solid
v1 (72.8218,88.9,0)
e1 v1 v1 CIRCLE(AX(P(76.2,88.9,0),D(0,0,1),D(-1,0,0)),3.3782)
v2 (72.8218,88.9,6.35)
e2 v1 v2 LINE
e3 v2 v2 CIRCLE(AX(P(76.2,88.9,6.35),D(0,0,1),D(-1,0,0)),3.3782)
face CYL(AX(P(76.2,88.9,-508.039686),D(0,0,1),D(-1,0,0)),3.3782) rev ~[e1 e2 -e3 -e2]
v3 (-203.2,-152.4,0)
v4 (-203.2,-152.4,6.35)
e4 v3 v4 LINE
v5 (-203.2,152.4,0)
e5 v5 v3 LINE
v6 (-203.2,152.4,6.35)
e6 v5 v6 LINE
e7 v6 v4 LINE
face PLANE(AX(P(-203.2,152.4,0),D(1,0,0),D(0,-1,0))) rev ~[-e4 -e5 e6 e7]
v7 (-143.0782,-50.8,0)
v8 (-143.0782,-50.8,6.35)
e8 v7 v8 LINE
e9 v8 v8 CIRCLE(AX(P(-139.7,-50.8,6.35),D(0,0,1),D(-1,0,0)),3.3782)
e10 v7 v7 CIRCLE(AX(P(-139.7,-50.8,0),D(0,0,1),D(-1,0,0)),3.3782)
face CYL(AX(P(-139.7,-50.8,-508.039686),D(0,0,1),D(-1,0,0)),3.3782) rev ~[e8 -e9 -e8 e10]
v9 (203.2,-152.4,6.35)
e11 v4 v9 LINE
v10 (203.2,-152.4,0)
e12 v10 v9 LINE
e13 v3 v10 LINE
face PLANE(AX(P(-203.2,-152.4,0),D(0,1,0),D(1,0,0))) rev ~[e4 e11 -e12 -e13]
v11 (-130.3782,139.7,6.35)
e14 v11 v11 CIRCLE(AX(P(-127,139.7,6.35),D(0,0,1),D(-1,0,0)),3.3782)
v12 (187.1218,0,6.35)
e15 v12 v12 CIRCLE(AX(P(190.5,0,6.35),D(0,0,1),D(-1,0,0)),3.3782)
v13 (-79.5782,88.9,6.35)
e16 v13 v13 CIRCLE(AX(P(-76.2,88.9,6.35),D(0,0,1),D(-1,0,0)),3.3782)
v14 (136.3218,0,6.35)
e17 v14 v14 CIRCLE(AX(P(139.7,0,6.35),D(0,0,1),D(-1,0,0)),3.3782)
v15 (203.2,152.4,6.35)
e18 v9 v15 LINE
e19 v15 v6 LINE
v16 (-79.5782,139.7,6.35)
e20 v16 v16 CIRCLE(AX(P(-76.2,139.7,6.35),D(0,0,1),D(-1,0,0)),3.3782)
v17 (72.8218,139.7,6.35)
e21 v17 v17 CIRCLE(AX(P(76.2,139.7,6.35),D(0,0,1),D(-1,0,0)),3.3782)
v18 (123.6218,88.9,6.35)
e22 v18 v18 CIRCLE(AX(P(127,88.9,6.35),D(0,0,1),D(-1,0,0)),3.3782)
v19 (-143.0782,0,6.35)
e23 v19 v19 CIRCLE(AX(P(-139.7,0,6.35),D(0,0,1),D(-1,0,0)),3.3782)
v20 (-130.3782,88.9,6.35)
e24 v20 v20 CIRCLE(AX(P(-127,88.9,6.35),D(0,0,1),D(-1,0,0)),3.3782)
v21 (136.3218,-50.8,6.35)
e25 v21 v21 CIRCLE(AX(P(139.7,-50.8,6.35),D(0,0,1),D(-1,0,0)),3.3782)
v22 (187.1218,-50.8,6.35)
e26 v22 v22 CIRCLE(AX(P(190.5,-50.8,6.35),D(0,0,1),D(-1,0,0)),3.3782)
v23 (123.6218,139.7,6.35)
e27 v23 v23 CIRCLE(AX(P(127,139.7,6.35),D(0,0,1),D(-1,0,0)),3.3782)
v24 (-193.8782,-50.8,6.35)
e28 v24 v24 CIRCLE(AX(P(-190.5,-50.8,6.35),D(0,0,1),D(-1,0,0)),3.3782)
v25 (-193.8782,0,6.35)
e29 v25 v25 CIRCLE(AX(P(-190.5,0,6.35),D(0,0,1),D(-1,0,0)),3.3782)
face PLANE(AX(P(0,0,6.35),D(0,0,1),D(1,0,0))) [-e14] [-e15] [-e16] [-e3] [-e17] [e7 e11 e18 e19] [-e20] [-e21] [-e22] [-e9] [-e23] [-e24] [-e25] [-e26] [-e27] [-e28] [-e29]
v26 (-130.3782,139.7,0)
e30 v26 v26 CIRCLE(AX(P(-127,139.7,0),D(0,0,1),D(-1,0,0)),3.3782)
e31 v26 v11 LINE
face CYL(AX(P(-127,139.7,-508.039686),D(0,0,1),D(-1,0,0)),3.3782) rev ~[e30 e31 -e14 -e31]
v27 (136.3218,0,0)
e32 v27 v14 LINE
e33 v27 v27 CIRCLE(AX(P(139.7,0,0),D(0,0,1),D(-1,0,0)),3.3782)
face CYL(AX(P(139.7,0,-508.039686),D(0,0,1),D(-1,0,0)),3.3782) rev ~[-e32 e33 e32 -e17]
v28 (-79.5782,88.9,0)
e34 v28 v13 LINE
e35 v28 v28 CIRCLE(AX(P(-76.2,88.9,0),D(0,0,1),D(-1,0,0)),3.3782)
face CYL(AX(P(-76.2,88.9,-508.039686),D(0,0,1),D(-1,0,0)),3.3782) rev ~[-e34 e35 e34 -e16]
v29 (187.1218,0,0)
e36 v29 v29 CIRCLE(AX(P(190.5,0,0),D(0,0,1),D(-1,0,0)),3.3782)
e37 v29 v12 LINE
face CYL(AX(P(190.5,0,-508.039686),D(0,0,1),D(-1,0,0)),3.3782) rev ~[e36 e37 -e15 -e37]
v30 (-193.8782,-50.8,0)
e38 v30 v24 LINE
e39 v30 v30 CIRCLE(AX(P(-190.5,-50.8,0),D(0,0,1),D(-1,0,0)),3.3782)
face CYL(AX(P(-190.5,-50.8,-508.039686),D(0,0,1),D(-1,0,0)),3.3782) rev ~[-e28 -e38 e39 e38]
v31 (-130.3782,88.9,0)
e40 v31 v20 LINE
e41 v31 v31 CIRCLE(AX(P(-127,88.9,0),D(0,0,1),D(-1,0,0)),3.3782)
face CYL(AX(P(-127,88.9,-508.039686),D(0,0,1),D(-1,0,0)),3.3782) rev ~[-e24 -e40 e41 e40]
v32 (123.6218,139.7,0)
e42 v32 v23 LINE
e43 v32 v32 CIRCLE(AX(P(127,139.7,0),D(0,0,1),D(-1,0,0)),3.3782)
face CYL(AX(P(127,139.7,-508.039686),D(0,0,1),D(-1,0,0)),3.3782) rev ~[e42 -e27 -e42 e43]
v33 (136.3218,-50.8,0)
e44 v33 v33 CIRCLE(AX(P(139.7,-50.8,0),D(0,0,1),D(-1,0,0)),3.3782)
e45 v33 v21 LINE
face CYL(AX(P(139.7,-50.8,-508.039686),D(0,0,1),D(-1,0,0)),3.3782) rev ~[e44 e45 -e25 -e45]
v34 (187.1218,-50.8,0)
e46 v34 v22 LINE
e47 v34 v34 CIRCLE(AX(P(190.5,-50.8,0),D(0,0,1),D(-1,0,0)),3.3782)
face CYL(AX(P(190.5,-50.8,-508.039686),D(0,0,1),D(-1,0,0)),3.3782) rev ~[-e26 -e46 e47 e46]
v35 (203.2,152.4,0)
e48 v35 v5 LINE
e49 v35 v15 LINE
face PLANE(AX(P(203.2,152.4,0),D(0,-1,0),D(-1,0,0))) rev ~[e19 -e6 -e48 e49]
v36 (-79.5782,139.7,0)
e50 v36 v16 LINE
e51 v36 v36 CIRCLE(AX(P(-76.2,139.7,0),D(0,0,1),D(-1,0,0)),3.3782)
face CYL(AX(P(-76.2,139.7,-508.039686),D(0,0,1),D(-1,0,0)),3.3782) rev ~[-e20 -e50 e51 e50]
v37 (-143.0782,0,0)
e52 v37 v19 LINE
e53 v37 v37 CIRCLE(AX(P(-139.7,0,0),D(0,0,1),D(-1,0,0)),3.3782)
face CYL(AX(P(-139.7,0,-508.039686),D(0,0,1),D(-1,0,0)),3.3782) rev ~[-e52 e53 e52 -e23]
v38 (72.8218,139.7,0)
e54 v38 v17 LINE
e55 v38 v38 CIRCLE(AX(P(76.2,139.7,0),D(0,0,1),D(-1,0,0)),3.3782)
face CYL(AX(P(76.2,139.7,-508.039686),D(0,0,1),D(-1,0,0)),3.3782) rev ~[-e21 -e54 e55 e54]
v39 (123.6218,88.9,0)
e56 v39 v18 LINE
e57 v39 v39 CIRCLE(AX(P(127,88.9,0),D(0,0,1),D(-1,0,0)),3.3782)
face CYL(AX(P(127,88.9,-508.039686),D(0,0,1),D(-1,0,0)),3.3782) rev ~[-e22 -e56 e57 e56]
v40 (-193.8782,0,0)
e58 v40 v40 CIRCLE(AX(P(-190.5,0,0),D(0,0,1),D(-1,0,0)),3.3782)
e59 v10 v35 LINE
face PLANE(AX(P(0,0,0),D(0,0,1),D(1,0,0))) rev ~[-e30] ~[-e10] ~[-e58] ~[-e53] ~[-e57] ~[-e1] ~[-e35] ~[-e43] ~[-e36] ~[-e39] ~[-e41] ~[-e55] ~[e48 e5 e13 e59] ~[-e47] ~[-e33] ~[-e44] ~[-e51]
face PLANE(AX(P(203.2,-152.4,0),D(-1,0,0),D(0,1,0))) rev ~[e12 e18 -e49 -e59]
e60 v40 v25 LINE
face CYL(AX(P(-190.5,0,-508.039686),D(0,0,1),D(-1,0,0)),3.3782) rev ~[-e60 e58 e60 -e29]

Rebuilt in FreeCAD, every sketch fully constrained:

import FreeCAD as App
import Part
import Sketcher
Q = App.Units.Quantity

doc = App.newDocument("Part")
body = doc.addObject("PartDesign::Body", "Body")

# Sketch on XY plane
sketch1 = body.newObject("Sketcher::SketchObject", "Sketch")
sketch1.AttachmentSupport = (doc.getObject("XY_Plane"), [""])
sketch1.MapMode = "FlatFace"
sketch1.addGeometry(Part.LineSegment(App.Vector(-203.2, 152.4, 0), App.Vector(-203.2, -152.4, 0)), False)
sketch1.addGeometry(Part.LineSegment(App.Vector(-203.2, -152.4, 0), App.Vector(203.2, -152.4, 0)), False)
sketch1.addGeometry(Part.LineSegment(App.Vector(203.2, -152.4, 0), App.Vector(203.2, 152.4, 0)), False)
sketch1.addGeometry(Part.LineSegment(App.Vector(203.2, 152.4, 0), App.Vector(-203.2, 152.4, 0)), False)
sketch1.addConstraint(Sketcher.Constraint("Coincident", 0, 2, 1, 1))
sketch1.addConstraint(Sketcher.Constraint("Coincident", 1, 2, 2, 1))
sketch1.addConstraint(Sketcher.Constraint("Coincident", 2, 2, 3, 1))
sketch1.addConstraint(Sketcher.Constraint("Coincident", 3, 2, 0, 1))
sketch1.addConstraint(Sketcher.Constraint("Vertical", 0))
sketch1.addConstraint(Sketcher.Constraint("Horizontal", 1))
sketch1.addConstraint(Sketcher.Constraint("Vertical", 2))
sketch1.addConstraint(Sketcher.Constraint("Horizontal", 3))
sketch1.addConstraint(Sketcher.Constraint("Symmetric", 0, 2, 2, 2, -1, 1))
sketch1.addConstraint(Sketcher.Constraint("DistanceX", 1, 1, 1, 2, Q("16 in")))
sketch1.addConstraint(Sketcher.Constraint("DistanceY", 0, 2, 0, 1, Q("12 in")))
pad1 = body.newObject("PartDesign::Pad", "Pad")
pad1.Profile = sketch1
pad1.Length = Q("0.25 in")

# Sketch on XY plane
sketch2 = body.newObject("Sketcher::SketchObject", "Sketch001")
sketch2.AttachmentSupport = (doc.getObject("XY_Plane"), [""])
sketch2.MapMode = "FlatFace"
sketch2.addGeometry(Part.Circle(App.Vector(-127, 139.7, 0), App.Vector(0, 0, 1), 3.3782), False)
sketch2.addGeometry(Part.Circle(App.Vector(-76.2, 139.7, 0), App.Vector(0, 0, 1), 3.3782), False)
sketch2.addGeometry(Part.Circle(App.Vector(-127, 88.9, 0), App.Vector(0, 0, 1), 3.3782), False)
sketch2.addGeometry(Part.Circle(App.Vector(-76.2, 88.9, 0), App.Vector(0, 0, 1), 3.3782), False)
sketch2.addGeometry(Part.Circle(App.Vector(76.2, 139.7, 0), App.Vector(0, 0, 1), 3.3782), False)
sketch2.addGeometry(Part.Circle(App.Vector(127, 139.7, 0), App.Vector(0, 0, 1), 3.3782), False)
sketch2.addGeometry(Part.Circle(App.Vector(76.2, 88.9, 0), App.Vector(0, 0, 1), 3.3782), False)
sketch2.addGeometry(Part.Circle(App.Vector(127, 88.9, 0), App.Vector(0, 0, 1), 3.3782), False)
sketch2.addGeometry(Part.Circle(App.Vector(139.7, 0, 0), App.Vector(0, 0, 1), 3.3782), False)
sketch2.addGeometry(Part.Circle(App.Vector(190.5, 0, 0), App.Vector(0, 0, 1), 3.3782), False)
sketch2.addGeometry(Part.Circle(App.Vector(139.7, -50.8, 0), App.Vector(0, 0, 1), 3.3782), False)
sketch2.addGeometry(Part.Circle(App.Vector(190.5, -50.8, 0), App.Vector(0, 0, 1), 3.3782), False)
sketch2.addGeometry(Part.Circle(App.Vector(-190.5, 0, 0), App.Vector(0, 0, 1), 3.3782), False)
sketch2.addGeometry(Part.Circle(App.Vector(-139.7, 0, 0), App.Vector(0, 0, 1), 3.3782), False)
sketch2.addGeometry(Part.Circle(App.Vector(-139.7, -50.8, 0), App.Vector(0, 0, 1), 3.3782), False)
sketch2.addGeometry(Part.Circle(App.Vector(-190.5, -50.8, 0), App.Vector(0, 0, 1), 3.3782), False)
sketch2.addConstraint(Sketcher.Constraint("Equal", 0, 1))
sketch2.addConstraint(Sketcher.Constraint("Equal", 1, 2))
sketch2.addConstraint(Sketcher.Constraint("Equal", 2, 3))
sketch2.addConstraint(Sketcher.Constraint("Equal", 3, 4))
sketch2.addConstraint(Sketcher.Constraint("Equal", 4, 5))
sketch2.addConstraint(Sketcher.Constraint("Equal", 5, 6))
sketch2.addConstraint(Sketcher.Constraint("Equal", 6, 7))
sketch2.addConstraint(Sketcher.Constraint("Equal", 7, 8))
sketch2.addConstraint(Sketcher.Constraint("Equal", 8, 9))
sketch2.addConstraint(Sketcher.Constraint("Equal", 9, 10))
sketch2.addConstraint(Sketcher.Constraint("Equal", 10, 11))
sketch2.addConstraint(Sketcher.Constraint("Equal", 11, 12))
sketch2.addConstraint(Sketcher.Constraint("Equal", 12, 13))
sketch2.addConstraint(Sketcher.Constraint("Equal", 13, 14))
sketch2.addConstraint(Sketcher.Constraint("Equal", 14, 15))
sketch2.addConstraint(Sketcher.Constraint("Symmetric", 9, 3, 12, 3, -1, 1))
sketch2.addConstraint(Sketcher.Constraint("Symmetric", 8, 3, 13, 3, -1, 1))
sketch2.addConstraint(Sketcher.Constraint("Symmetric", 1, 3, 4, 3, -2))
sketch2.addConstraint(Sketcher.Constraint("Symmetric", 0, 3, 5, 3, -2))
sketch2.addConstraint(Sketcher.Constraint("Symmetric", 3, 3, 6, 3, -2))
sketch2.addConstraint(Sketcher.Constraint("Symmetric", 2, 3, 7, 3, -2))
sketch2.addConstraint(Sketcher.Constraint("Symmetric", 10, 3, 14, 3, -2))
sketch2.addConstraint(Sketcher.Constraint("Symmetric", 11, 3, 15, 3, -2))
sketch2.addConstraint(Sketcher.Constraint("PointOnObject", 8, 3, -1))
sketch2.addConstraint(Sketcher.Constraint("PointOnObject", 9, 3, -1))
sketch2.addConstraint(Sketcher.Constraint("Horizontal", 0, 3, 1, 3))
sketch2.addConstraint(Sketcher.Constraint("Horizontal", 2, 3, 3, 3))
sketch2.addConstraint(Sketcher.Constraint("Horizontal", 10, 3, 11, 3))
sketch2.addConstraint(Sketcher.Constraint("Vertical", 0, 3, 2, 3))
sketch2.addConstraint(Sketcher.Constraint("Vertical", 1, 3, 3, 3))
sketch2.addConstraint(Sketcher.Constraint("Vertical", 8, 3, 10, 3))
sketch2.addConstraint(Sketcher.Constraint("Vertical", 9, 3, 11, 3))
sketch2.addConstraint(Sketcher.Constraint("Diameter", 0, Q("0.266 in")))
sketch2.addConstraint(Sketcher.Constraint("DistanceX", 0, 3, -1, 1, Q("5 in")))
sketch2.addConstraint(Sketcher.Constraint("DistanceX", 1, 3, -1, 1, Q("3 in")))
sketch2.addConstraint(Sketcher.Constraint("DistanceY", 10, 3, -1, 1, Q("2 in")))
sketch2.addConstraint(Sketcher.Constraint("DistanceY", 2, 3, 0, 3, Q("2 in")))
sketch2.addConstraint(Sketcher.Constraint("DistanceX", 8, 3, 9, 3, Q("2 in")))
sketch2.addConstraint(Sketcher.Constraint("DistanceY", -1, 1, 0, 3, Q("5.5 in")))
sketch2.addConstraint(Sketcher.Constraint("DistanceX", -1, 1, 8, 3, Q("5.5 in")))
doc.recompute()
hole = body.newObject("PartDesign::Hole", "Hole")
hole.Profile = sketch2
hole.ThreadType = "None"
hole.Diameter = Q("0.266 in")
hole.DepthType = "ThroughAll"
hole.Reversed = True

doc.recompute()
